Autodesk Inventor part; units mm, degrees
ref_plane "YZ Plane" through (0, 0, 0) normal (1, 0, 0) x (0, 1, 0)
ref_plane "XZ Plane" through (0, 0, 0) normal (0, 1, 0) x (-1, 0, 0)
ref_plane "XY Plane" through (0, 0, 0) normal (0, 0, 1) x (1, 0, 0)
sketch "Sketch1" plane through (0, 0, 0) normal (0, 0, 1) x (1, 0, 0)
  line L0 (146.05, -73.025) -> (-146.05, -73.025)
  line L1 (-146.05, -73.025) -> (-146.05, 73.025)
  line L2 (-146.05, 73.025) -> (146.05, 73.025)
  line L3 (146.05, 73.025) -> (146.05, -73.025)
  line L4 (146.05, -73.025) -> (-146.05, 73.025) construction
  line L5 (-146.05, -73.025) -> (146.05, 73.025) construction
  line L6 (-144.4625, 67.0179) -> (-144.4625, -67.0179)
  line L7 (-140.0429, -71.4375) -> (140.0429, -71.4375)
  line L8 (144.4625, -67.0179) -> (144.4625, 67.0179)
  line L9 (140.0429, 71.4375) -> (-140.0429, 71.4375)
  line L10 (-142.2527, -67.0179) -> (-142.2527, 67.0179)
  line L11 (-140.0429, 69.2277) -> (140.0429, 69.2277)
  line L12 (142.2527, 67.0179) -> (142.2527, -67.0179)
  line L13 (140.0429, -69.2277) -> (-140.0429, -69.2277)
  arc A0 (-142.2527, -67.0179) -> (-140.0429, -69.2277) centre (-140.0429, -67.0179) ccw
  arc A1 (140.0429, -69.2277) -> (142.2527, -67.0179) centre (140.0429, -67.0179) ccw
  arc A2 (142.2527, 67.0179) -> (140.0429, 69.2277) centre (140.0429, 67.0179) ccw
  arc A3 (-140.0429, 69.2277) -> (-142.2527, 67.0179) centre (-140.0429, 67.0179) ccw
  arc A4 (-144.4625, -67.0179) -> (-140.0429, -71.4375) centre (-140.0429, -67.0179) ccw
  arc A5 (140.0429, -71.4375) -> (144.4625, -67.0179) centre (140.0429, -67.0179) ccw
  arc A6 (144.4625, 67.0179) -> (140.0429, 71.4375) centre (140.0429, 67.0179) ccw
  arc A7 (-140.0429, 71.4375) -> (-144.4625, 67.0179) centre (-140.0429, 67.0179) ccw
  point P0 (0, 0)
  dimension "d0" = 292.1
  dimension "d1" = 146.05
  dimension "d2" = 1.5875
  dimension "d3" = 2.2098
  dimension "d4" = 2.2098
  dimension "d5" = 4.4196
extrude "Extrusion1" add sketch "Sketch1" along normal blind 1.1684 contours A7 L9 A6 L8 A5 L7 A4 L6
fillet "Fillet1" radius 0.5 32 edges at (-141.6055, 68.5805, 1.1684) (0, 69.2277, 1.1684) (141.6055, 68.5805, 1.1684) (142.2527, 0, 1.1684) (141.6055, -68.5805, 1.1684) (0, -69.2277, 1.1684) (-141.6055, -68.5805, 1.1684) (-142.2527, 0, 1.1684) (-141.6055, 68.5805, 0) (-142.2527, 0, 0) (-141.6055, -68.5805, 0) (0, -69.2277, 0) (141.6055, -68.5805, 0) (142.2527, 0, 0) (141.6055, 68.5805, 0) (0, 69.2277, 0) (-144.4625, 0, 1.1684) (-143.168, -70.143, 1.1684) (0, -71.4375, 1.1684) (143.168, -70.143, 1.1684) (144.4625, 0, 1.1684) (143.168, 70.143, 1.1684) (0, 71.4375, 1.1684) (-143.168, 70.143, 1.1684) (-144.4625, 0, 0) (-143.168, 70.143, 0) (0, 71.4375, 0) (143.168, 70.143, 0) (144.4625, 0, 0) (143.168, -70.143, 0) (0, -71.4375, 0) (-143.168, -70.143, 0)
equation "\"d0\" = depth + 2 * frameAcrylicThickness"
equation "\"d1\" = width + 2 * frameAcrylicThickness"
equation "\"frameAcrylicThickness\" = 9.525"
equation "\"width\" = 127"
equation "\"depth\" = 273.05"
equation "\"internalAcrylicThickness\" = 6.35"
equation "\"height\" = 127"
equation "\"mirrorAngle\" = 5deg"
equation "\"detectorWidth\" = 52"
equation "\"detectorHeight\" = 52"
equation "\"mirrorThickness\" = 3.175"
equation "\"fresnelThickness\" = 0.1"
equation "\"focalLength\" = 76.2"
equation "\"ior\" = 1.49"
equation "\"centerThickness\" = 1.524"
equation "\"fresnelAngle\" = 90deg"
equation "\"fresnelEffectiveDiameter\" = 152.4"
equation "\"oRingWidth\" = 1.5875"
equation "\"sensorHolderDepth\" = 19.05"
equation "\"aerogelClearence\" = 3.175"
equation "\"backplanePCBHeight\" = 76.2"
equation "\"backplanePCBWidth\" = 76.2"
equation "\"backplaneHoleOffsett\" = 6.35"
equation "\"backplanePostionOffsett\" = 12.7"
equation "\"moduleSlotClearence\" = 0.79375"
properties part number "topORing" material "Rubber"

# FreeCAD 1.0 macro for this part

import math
import FreeCAD as App
import Part
import Sketcher

V = App.Vector
Q = App.Units.Quantity


def edges_at(feature, points):
    """Names of the edges that pass closest to the given points."""
    edges = feature.Shape.Edges
    near = lambda p: min(range(len(edges)), key=lambda i: edges[i].distToShape(Part.Vertex(*p))[0])
    return sorted({f"Edge{near(p) + 1}" for p in points})

doc = App.newDocument("Part")
params = doc.addObject("Spreadsheet::Sheet", "Params")
for row, (alias, value) in enumerate([
    ("sketch1_radius", "0.174 in"),
    ("sketch1_radius2", "0.087 in"),
    ("sketch1_width", "11.027 in"),
    ("sketch1_height", "5.277 in"),
    ("pad1_length", "0.046 in"),
    ("fillet_radius", "0.5 mm"),
], start=1):
    params.set(f"A{row}", alias)
    params.set(f"B{row}", "=" + value)
    params.setAlias(f"B{row}", alias)

body = doc.addObject("PartDesign::Body", "Body")

sketch1 = body.newObject("Sketcher::SketchObject", "Sketch")
sketch1.AttachmentSupport = (doc.getObject("XY_Plane"), [""])
sketch1.MapMode = "FlatFace"
sketch1.addGeometry([
    Part.ArcOfCircle(Part.Circle(V(-140, 67, 0), V(0, 0, 1), 4.4), math.radians(90), math.radians(180)),
    Part.LineSegment(V(-144.5, 67, 0), V(-144.5, -67, 0)),
    Part.ArcOfCircle(Part.Circle(V(-140, -67, 0), V(0, 0, 1), 4.4), math.radians(180), math.radians(270)),
    Part.LineSegment(V(-140, -71.4, 0), V(140, -71.4, 0)),
    Part.ArcOfCircle(Part.Circle(V(140, -67, 0), V(0, 0, 1), 4.4), math.radians(-90), math.radians(0)),
    Part.LineSegment(V(144.5, -67, 0), V(144.5, 67, 0)),
    Part.ArcOfCircle(Part.Circle(V(140, 67, 0), V(0, 0, 1), 4.4), math.radians(0), math.radians(90)),
    Part.LineSegment(V(140, 71.4, 0), V(-140, 71.4, 0)),
    Part.ArcOfCircle(Part.Circle(V(-140, -67, 0), V(0, 0, 1), 2.2), math.radians(180), math.radians(270)),
    Part.LineSegment(V(-142.3, -67, 0), V(-142.3, 67, 0)),
    Part.ArcOfCircle(Part.Circle(V(-140, 67, 0), V(0, 0, 1), 2.2), math.radians(90), math.radians(180)),
    Part.LineSegment(V(-140, 69.2, 0), V(140, 69.2, 0)),
    Part.ArcOfCircle(Part.Circle(V(140, 67, 0), V(0, 0, 1), 2.2), math.radians(0), math.radians(90)),
    Part.LineSegment(V(142.3, 67, 0), V(142.3, -67, 0)),
    Part.ArcOfCircle(Part.Circle(V(140, -67, 0), V(0, 0, 1), 2.2), math.radians(-90), math.radians(0)),
    Part.LineSegment(V(140, -69.2, 0), V(-140, -69.2, 0)),
], False)
sketch1.addConstraint([
    Sketcher.Constraint("Tangent", 0, 2, 1, 1),
    Sketcher.Constraint("Tangent", 1, 2, 2, 1),
    Sketcher.Constraint("Tangent", 2, 2, 3, 1),
    Sketcher.Constraint("Tangent", 3, 2, 4, 1),
    Sketcher.Constraint("Tangent", 4, 2, 5, 1),
    Sketcher.Constraint("Tangent", 5, 2, 6, 1),
    Sketcher.Constraint("Tangent", 6, 2, 7, 1),
    Sketcher.Constraint("Tangent", 7, 2, 0, 1),
    Sketcher.Constraint("Tangent", 8, 1, 9, 1),
    Sketcher.Constraint("Tangent", 9, 2, 10, 2),
    Sketcher.Constraint("Tangent", 10, 1, 11, 1),
    Sketcher.Constraint("Tangent", 11, 2, 12, 2),
    Sketcher.Constraint("Tangent", 12, 1, 13, 1),
    Sketcher.Constraint("Tangent", 13, 2, 14, 2),
    Sketcher.Constraint("Tangent", 14, 1, 15, 1),
    Sketcher.Constraint("Tangent", 15, 2, 8, 2),
    Sketcher.Constraint("Vertical", 1),
    Sketcher.Constraint("Horizontal", 3),
    Sketcher.Constraint("Vertical", 5),
    Sketcher.Constraint("Horizontal", 7),
    Sketcher.Constraint("Vertical", 9),
    Sketcher.Constraint("Horizontal", 11),
    Sketcher.Constraint("Vertical", 13),
    Sketcher.Constraint("Horizontal", 15),
    Sketcher.Constraint("Coincident", 8, 3, 2, 3),
    Sketcher.Constraint("Coincident", 10, 3, 0, 3),
    Sketcher.Constraint("Coincident", 12, 3, 6, 3),
    Sketcher.Constraint("Equal", 0, 2),
    Sketcher.Constraint("Equal", 2, 4),
    Sketcher.Constraint("Equal", 4, 6),
    Sketcher.Constraint("Equal", 12, 14),
    Sketcher.Constraint("Symmetric", 0, 3, 4, 3, -1, 1),
    Sketcher.Constraint("Radius", 0, Q("0.174 in")),
    Sketcher.Constraint("Radius", 8, Q("0.087 in")),
    Sketcher.Constraint("DistanceX", 3, 1, 3, 2, Q("11.027 in")),
    Sketcher.Constraint("DistanceY", 1, 2, 1, 1, Q("5.277 in")),
])
sketch1.setExpression("Constraints[32]", "Params.sketch1_radius")
sketch1.setExpression("Constraints[33]", "Params.sketch1_radius2")
sketch1.setExpression("Constraints[34]", "Params.sketch1_width")
sketch1.setExpression("Constraints[35]", "Params.sketch1_height")
pad1 = body.newObject("PartDesign::Pad", "Pad")
pad1.Profile = sketch1
pad1.setExpression("Length", "Params.pad1_length")
doc.recompute()

fillet = body.newObject("PartDesign::Fillet", "Fillet")
fillet.Base = (pad1, edges_at(pad1, [
    (-141.606, 68.581, 1.168),
    (0, 69.228, 1.168),
    (141.606, 68.581, 1.168),
    (142.253, 0, 1.168),
    (141.606, -68.581, 1.168),
    (0, -69.228, 1.168),
    (-141.606, -68.581, 1.168),
    (-142.253, 0, 1.168),
    (-141.606, 68.581, 0),
    (-142.253, 0, 0),
    (-141.606, -68.581, 0),
    (0, -69.228, 0),
    (141.606, -68.581, 0),
    (142.253, 0, 0),
    (141.606, 68.581, 0),
    (0, 69.228, 0),
    (-144.463, 0, 1.168),
    (-143.168, -70.143, 1.168),
    (0, -71.438, 1.168),
    (143.168, -70.143, 1.168),
    (144.463, 0, 1.168),
    (143.168, 70.143, 1.168),
    (0, 71.438, 1.168),
    (-143.168, 70.143, 1.168),
    (-144.463, 0, 0),
    (-143.168, 70.143, 0),
    (0, 71.438, 0),
    (143.168, 70.143, 0),
    (144.463, 0, 0),
    (143.168, -70.143, 0),
    (0, -71.438, 0),
    (-143.168, -70.143, 0),
]))
fillet.setExpression("Radius", "Params.fillet_radius")

doc.recompute()
